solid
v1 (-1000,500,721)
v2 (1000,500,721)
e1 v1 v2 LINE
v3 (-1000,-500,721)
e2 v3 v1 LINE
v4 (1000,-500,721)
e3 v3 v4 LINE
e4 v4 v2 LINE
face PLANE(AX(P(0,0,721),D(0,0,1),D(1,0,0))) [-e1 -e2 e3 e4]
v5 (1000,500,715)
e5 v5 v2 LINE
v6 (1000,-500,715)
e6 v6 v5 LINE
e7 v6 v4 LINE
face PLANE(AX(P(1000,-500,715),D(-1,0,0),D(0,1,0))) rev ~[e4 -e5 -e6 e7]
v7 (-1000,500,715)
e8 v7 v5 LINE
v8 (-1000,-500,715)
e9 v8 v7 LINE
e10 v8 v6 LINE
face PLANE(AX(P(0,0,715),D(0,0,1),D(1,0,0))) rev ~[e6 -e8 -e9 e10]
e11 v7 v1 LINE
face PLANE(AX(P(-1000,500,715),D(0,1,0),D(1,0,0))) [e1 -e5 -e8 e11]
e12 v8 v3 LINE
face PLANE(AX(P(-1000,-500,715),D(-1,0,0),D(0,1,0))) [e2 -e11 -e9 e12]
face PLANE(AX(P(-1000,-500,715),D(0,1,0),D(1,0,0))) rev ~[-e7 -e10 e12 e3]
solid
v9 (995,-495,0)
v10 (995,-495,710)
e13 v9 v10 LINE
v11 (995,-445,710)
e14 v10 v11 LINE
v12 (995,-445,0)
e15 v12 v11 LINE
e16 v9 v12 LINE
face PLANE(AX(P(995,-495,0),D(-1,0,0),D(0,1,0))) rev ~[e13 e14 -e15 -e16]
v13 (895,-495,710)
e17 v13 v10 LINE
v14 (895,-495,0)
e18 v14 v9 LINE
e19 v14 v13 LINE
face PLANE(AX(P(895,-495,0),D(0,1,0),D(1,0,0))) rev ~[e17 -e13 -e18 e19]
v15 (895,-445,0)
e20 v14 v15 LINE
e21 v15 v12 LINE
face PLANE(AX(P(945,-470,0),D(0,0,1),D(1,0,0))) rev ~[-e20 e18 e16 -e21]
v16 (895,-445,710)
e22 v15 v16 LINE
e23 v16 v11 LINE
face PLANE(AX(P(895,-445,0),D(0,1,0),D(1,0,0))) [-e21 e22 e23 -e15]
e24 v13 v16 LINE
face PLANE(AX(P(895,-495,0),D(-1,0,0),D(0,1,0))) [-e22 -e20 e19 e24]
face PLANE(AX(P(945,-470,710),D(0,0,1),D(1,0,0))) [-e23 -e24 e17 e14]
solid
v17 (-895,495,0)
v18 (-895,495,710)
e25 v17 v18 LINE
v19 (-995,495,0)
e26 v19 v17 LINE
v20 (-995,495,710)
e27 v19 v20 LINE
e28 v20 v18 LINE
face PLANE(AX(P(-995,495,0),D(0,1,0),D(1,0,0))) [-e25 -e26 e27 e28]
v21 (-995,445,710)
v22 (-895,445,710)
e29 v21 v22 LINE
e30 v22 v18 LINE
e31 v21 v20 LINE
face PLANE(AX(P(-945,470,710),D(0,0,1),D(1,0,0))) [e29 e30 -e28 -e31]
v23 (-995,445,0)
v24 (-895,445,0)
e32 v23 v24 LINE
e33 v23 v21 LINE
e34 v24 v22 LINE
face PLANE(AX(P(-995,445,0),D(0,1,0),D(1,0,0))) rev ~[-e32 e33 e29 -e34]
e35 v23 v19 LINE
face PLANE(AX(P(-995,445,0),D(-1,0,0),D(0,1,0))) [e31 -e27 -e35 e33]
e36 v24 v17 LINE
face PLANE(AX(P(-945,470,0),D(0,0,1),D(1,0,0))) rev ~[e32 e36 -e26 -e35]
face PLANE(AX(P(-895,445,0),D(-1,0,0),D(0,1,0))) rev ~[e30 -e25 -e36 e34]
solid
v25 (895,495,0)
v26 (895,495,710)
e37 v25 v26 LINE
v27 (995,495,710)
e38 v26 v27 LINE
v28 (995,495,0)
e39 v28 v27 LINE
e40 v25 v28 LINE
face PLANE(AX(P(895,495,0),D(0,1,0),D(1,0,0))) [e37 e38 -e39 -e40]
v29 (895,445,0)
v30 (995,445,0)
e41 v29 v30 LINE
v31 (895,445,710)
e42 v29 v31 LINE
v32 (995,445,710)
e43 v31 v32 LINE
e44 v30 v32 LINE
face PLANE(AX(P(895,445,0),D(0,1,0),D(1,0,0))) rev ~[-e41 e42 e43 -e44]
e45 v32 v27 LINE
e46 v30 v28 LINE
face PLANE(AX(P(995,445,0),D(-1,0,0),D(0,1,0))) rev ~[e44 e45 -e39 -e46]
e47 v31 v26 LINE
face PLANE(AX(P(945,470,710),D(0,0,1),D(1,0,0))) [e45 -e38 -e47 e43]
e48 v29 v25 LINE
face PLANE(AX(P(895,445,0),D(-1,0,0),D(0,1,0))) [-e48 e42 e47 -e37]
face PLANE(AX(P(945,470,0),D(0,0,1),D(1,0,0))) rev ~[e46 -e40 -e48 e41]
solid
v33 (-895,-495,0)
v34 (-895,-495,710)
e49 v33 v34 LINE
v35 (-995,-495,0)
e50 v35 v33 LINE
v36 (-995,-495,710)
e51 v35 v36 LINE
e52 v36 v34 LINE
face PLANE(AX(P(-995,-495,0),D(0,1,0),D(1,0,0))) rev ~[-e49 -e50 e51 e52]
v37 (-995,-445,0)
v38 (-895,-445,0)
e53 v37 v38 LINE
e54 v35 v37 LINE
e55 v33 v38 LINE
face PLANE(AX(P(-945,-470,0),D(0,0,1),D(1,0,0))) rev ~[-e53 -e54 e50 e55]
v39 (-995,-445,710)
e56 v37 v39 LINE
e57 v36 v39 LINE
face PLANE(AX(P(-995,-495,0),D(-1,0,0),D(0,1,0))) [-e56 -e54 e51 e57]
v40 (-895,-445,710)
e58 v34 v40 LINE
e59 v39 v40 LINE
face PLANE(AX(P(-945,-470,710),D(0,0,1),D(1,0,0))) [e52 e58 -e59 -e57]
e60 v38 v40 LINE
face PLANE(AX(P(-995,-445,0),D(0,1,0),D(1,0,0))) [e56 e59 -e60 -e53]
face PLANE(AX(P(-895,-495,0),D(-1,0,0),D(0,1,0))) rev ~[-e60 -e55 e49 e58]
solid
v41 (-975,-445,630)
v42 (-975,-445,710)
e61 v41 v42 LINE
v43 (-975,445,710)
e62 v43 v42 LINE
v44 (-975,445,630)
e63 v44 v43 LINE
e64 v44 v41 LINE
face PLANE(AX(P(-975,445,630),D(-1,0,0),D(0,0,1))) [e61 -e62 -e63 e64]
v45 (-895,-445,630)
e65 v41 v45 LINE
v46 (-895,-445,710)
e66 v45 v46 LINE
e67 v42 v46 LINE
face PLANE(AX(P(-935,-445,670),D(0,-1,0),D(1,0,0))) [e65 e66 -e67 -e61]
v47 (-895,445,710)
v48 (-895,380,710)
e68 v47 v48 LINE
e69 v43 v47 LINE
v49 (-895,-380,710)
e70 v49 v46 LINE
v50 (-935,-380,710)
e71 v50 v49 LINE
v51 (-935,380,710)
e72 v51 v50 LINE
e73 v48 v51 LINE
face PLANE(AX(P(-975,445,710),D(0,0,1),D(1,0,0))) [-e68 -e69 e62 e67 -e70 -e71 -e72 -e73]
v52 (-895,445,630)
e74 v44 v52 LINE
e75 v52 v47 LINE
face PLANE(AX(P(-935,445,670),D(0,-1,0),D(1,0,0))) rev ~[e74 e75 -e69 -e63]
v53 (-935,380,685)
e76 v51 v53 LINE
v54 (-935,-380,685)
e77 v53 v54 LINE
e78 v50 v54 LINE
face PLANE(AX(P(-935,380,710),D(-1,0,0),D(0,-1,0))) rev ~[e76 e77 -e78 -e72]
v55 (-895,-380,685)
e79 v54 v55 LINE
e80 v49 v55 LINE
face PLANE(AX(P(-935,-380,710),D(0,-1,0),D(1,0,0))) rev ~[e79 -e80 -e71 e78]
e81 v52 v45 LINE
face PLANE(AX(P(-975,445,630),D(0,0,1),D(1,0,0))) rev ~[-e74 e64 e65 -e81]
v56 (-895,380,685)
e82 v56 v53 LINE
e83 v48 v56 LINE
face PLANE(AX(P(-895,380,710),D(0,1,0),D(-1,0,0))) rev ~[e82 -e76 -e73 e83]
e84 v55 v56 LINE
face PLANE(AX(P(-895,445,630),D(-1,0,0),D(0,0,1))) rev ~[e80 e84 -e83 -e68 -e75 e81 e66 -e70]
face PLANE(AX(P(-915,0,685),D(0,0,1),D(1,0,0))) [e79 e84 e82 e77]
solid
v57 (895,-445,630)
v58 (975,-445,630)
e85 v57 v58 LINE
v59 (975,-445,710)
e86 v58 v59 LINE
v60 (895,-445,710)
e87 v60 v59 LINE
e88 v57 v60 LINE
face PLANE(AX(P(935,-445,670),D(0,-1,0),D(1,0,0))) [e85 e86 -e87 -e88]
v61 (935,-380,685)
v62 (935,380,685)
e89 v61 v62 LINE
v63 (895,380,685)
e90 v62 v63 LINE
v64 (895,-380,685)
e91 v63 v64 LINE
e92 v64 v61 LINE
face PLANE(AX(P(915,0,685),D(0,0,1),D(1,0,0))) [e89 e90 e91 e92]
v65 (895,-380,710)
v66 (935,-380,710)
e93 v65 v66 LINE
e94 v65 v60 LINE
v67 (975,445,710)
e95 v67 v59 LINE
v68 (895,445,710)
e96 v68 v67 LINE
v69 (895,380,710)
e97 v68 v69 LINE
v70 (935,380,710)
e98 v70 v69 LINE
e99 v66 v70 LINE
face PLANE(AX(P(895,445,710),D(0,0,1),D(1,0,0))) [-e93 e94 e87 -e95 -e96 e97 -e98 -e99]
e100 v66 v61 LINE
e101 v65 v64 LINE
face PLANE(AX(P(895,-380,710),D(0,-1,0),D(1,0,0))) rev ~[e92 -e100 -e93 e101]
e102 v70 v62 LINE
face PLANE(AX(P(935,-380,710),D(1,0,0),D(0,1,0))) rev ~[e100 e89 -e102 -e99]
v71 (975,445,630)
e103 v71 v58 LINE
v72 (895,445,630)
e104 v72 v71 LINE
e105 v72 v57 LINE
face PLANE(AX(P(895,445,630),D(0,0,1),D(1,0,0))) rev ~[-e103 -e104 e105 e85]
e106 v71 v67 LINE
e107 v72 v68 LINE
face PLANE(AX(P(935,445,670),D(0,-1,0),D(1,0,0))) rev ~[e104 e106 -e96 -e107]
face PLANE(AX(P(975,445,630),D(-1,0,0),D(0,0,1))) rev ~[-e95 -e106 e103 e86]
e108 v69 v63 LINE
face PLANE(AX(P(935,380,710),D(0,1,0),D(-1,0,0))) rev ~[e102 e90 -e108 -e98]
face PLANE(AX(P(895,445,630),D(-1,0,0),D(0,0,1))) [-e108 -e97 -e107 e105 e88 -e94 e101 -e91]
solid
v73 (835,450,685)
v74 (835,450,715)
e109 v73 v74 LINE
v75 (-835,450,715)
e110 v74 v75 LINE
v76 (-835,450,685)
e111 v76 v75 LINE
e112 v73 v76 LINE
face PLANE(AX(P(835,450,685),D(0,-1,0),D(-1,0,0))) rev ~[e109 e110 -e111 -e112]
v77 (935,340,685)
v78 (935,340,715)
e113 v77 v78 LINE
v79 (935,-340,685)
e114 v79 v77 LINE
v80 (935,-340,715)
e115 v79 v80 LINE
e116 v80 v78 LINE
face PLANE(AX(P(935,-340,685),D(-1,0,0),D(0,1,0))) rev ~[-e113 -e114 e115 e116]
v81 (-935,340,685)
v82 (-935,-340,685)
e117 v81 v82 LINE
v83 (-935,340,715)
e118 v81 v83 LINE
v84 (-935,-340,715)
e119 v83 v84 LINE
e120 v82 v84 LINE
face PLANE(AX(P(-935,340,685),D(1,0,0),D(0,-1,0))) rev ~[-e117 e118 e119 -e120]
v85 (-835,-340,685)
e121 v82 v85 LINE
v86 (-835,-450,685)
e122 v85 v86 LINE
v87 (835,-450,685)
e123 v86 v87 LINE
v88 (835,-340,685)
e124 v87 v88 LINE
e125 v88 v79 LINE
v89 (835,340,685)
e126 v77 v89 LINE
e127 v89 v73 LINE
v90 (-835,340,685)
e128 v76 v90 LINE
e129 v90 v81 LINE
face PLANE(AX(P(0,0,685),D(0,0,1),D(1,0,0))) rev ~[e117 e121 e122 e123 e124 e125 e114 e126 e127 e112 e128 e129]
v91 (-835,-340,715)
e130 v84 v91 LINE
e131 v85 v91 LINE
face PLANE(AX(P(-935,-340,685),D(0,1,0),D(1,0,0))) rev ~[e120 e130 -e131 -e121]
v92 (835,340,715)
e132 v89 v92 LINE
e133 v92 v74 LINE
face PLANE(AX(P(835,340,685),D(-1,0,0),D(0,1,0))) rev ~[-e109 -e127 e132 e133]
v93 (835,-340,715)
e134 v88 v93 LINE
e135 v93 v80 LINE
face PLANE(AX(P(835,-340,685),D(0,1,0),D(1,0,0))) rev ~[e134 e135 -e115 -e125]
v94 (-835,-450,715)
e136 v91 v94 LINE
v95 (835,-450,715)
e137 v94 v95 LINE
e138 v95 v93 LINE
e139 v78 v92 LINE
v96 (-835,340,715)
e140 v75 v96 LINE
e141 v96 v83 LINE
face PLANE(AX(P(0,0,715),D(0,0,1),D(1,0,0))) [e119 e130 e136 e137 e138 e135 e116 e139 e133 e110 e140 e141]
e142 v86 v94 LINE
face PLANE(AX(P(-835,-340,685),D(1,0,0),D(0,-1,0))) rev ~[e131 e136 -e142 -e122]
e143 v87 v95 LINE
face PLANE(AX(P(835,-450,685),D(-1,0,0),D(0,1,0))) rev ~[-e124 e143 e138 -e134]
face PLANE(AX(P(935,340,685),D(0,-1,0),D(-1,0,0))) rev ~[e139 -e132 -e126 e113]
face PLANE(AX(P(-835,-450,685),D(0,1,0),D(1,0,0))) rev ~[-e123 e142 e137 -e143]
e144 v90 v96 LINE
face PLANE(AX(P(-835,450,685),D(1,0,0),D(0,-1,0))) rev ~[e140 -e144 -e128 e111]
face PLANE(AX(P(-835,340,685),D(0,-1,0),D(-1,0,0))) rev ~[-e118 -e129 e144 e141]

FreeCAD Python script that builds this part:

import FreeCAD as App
import Part
import Sketcher
from FreeCAD import Vector
Q = App.Units.Quantity

doc = App.newDocument("Part")
body = doc.addObject("PartDesign::Body", "Body")
body.AllowCompound = True

# Sketch on XY plane
sketch1 = doc.addObject("Sketcher::SketchObject", "Sketch")
body.addObject(sketch1)
sketch1.AttachmentSupport = (doc.XY_Plane, [""])
sketch1.MapMode = "FlatFace"
sketch1.addGeometry([
    Part.LineSegment(Vector(-995, 495, 0), Vector(-995, 445, 0)),  # 0
    Part.LineSegment(Vector(-995, 445, 0), Vector(-895, 445, 0)),  # 1
    Part.LineSegment(Vector(-895, 445, 0), Vector(-895, 495, 0)),  # 2
    Part.LineSegment(Vector(-895, 495, 0), Vector(-995, 495, 0)),  # 3
    Part.LineSegment(Vector(895, 495, 0), Vector(895, 445, 0)),  # 4
    Part.LineSegment(Vector(895, 445, 0), Vector(995, 445, 0)),  # 5
    Part.LineSegment(Vector(995, 445, 0), Vector(995, 495, 0)),  # 6
    Part.LineSegment(Vector(995, 495, 0), Vector(895, 495, 0)),  # 7
    Part.LineSegment(Vector(895, -445, 0), Vector(895, -495, 0)),  # 8
    Part.LineSegment(Vector(895, -495, 0), Vector(995, -495, 0)),  # 9
    Part.LineSegment(Vector(995, -495, 0), Vector(995, -445, 0)),  # 10
    Part.LineSegment(Vector(995, -445, 0), Vector(895, -445, 0)),  # 11
    Part.LineSegment(Vector(-995, -445, 0), Vector(-995, -495, 0)),  # 12
    Part.LineSegment(Vector(-995, -495, 0), Vector(-895, -495, 0)),  # 13
    Part.LineSegment(Vector(-895, -495, 0), Vector(-895, -445, 0)),  # 14
    Part.LineSegment(Vector(-895, -445, 0), Vector(-995, -445, 0)),  # 15
], False)
sketch1.addConstraint([
    Sketcher.Constraint("Coincident", 0, 2, 1, 1),
    Sketcher.Constraint("Coincident", 1, 2, 2, 1),
    Sketcher.Constraint("Coincident", 2, 2, 3, 1),
    Sketcher.Constraint("Coincident", 3, 2, 0, 1),
    Sketcher.Constraint("Coincident", 4, 2, 5, 1),
    Sketcher.Constraint("Coincident", 5, 2, 6, 1),
    Sketcher.Constraint("Coincident", 6, 2, 7, 1),
    Sketcher.Constraint("Coincident", 7, 2, 4, 1),
    Sketcher.Constraint("Coincident", 8, 2, 9, 1),
    Sketcher.Constraint("Coincident", 9, 2, 10, 1),
    Sketcher.Constraint("Coincident", 10, 2, 11, 1),
    Sketcher.Constraint("Coincident", 11, 2, 8, 1),
    Sketcher.Constraint("Coincident", 12, 2, 13, 1),
    Sketcher.Constraint("Coincident", 13, 2, 14, 1),
    Sketcher.Constraint("Coincident", 14, 2, 15, 1),
    Sketcher.Constraint("Coincident", 15, 2, 12, 1),
    Sketcher.Constraint("Vertical", 0),
    Sketcher.Constraint("Horizontal", 1),
    Sketcher.Constraint("Vertical", 2),
    Sketcher.Constraint("Horizontal", 3),
    Sketcher.Constraint("Vertical", 4),
    Sketcher.Constraint("Horizontal", 5),
    Sketcher.Constraint("Vertical", 6),
    Sketcher.Constraint("Horizontal", 7),
    Sketcher.Constraint("Vertical", 8),
    Sketcher.Constraint("Horizontal", 9),
    Sketcher.Constraint("Vertical", 10),
    Sketcher.Constraint("Horizontal", 11),
    Sketcher.Constraint("Vertical", 12),
    Sketcher.Constraint("Horizontal", 13),
    Sketcher.Constraint("Vertical", 14),
    Sketcher.Constraint("Horizontal", 15),
    Sketcher.Constraint("Symmetric", 2, 2, 8, 2, -1, 1),
    Sketcher.Constraint("Symmetric", 0, 2, 10, 2, -1, 1),
    Sketcher.Constraint("Symmetric", 6, 2, 12, 2, -1, 1),
    Sketcher.Constraint("Symmetric", 4, 2, 14, 2, -1, 1),
    Sketcher.Constraint("Symmetric", 1, 2, 4, 2, -2),
    Sketcher.Constraint("Symmetric", 3, 2, 6, 2, -2),
    Sketcher.Constraint("DistanceX", 1, 1, 1, 2, Q("100 mm")),
    Sketcher.Constraint("DistanceY", 0, 2, 0, 1, Q("50 mm")),
    Sketcher.Constraint("DistanceX", 0, 2, -1, 1, Q("995 mm")),
    Sketcher.Constraint("DistanceY", -1, 1, 0, 2, Q("445 mm")),
])
pad1 = doc.addObject("PartDesign::Pad", "Pad")
body.addObject(pad1)
pad1.Profile = sketch1
pad1.Length = 710
body2 = doc.addObject("PartDesign::Body", "Body001")
body2.AllowCompound = True

# Sketch on XZ plane
sketch2 = doc.addObject("Sketcher::SketchObject", "Sketch001")
body2.addObject(sketch2)
sketch2.AttachmentSupport = (doc.getObject("XZ_Plane001"), [""])
sketch2.MapMode = "FlatFace"
sketch2.AttachmentOffset = App.Placement(Vector(0, 0, -445), App.Rotation())
sketch2.addGeometry([
    Part.LineSegment(Vector(-975, 710, 0), Vector(-975, 630, 0)),  # 0
    Part.LineSegment(Vector(-975, 630, 0), Vector(-895, 630, 0)),  # 1
    Part.LineSegment(Vector(-895, 630, 0), Vector(-895, 710, 0)),  # 2
    Part.LineSegment(Vector(-895, 710, 0), Vector(-975, 710, 0)),  # 3
    Part.LineSegment(Vector(895, 710, 0), Vector(895, 630, 0)),  # 4
    Part.LineSegment(Vector(895, 630, 0), Vector(975, 630, 0)),  # 5
    Part.LineSegment(Vector(975, 630, 0), Vector(975, 710, 0)),  # 6
    Part.LineSegment(Vector(975, 710, 0), Vector(895, 710, 0)),  # 7
], False)
sketch2.addConstraint([
    Sketcher.Constraint("Coincident", 0, 2, 1, 1),
    Sketcher.Constraint("Coincident", 1, 2, 2, 1),
    Sketcher.Constraint("Coincident", 2, 2, 3, 1),
    Sketcher.Constraint("Coincident", 3, 2, 0, 1),
    Sketcher.Constraint("Coincident", 4, 2, 5, 1),
    Sketcher.Constraint("Coincident", 5, 2, 6, 1),
    Sketcher.Constraint("Coincident", 6, 2, 7, 1),
    Sketcher.Constraint("Coincident", 7, 2, 4, 1),
    Sketcher.Constraint("Vertical", 0),
    Sketcher.Constraint("Horizontal", 1),
    Sketcher.Constraint("Vertical", 2),
    Sketcher.Constraint("Horizontal", 3),
    Sketcher.Constraint("Vertical", 4),
    Sketcher.Constraint("Horizontal", 5),
    Sketcher.Constraint("Vertical", 6),
    Sketcher.Constraint("Horizontal", 7),
    Sketcher.Constraint("Symmetric", 1, 2, 4, 2, -2),
    Sketcher.Constraint("Symmetric", 3, 2, 6, 2, -2),
    Sketcher.Constraint("Equal", 7, 0),
    Sketcher.Constraint("DistanceX", 1, 1, 1, 2, Q("80 mm")),
    Sketcher.Constraint("DistanceX", 0, 2, -1, 1, Q("975 mm")),
    Sketcher.Constraint("DistanceY", -1, 1, 0, 2, Q("630 mm")),
])
pad2 = doc.addObject("PartDesign::Pad", "Pad001")
body2.addObject(pad2)
pad2.Profile = sketch2
pad2.Length = 890

# Sketch on XY plane
sketch3 = doc.addObject("Sketcher::SketchObject", "Sketch002")
body2.addObject(sketch3)
sketch3.AttachmentSupport = (doc.getObject("XY_Plane001"), [""])
sketch3.MapMode = "FlatFace"
sketch3.AttachmentOffset = App.Placement(Vector(0, 0, 710), App.Rotation())
sketch3.addGeometry([
    Part.LineSegment(Vector(-935, 380, 0), Vector(-935, -380, 0)),  # 0
    Part.LineSegment(Vector(-935, -380, 0), Vector(-895, -380, 0)),  # 1
    Part.LineSegment(Vector(-895, -380, 0), Vector(-895, 380, 0)),  # 2
    Part.LineSegment(Vector(-895, 380, 0), Vector(-935, 380, 0)),  # 3
    Part.LineSegment(Vector(935, 380, 0), Vector(895, 380, 0)),  # 4
    Part.LineSegment(Vector(895, 380, 0), Vector(895, -380, 0)),  # 5
    Part.LineSegment(Vector(895, -380, 0), Vector(935, -380, 0)),  # 6
    Part.LineSegment(Vector(935, -380, 0), Vector(935, 380, 0)),  # 7
], False)
sketch3.addConstraint([
    Sketcher.Constraint("Coincident", 0, 2, 1, 1),
    Sketcher.Constraint("Coincident", 1, 2, 2, 1),
    Sketcher.Constraint("Coincident", 2, 2, 3, 1),
    Sketcher.Constraint("Coincident", 3, 2, 0, 1),
    Sketcher.Constraint("Coincident", 4, 2, 5, 1),
    Sketcher.Constraint("Coincident", 5, 2, 6, 1),
    Sketcher.Constraint("Coincident", 6, 2, 7, 1),
    Sketcher.Constraint("Coincident", 7, 2, 4, 1),
    Sketcher.Constraint("Vertical", 0),
    Sketcher.Constraint("Horizontal", 1),
    Sketcher.Constraint("Vertical", 2),
    Sketcher.Constraint("Horizontal", 3),
    Sketcher.Constraint("Horizontal", 4),
    Sketcher.Constraint("Vertical", 5),
    Sketcher.Constraint("Horizontal", 6),
    Sketcher.Constraint("Vertical", 7),
    Sketcher.Constraint("Symmetric", 1, 2, 4, 2, -1, 1),
    Sketcher.Constraint("Symmetric", 3, 2, 6, 2, -1, 1),
    Sketcher.Constraint("Horizontal", 3, 2, 4, 2),
    Sketcher.Constraint("DistanceX", 1, 1, 1, 2, Q("40 mm")),
    Sketcher.Constraint("DistanceY", 0, 2, 0, 1, Q("760 mm")),
    Sketcher.Constraint("DistanceX", 0, 2, -1, 1, Q("935 mm")),
])
pocket1 = doc.addObject("PartDesign::Pocket", "Pocket")
body2.addObject(pocket1)
pocket1.Profile = sketch3
pocket1.Length = 25
body3 = doc.addObject("PartDesign::Body", "Body002")

# Sketch on XY plane
sketch4 = doc.addObject("Sketcher::SketchObject", "Sketch003")
body3.addObject(sketch4)
sketch4.AttachmentSupport = (doc.getObject("XY_Plane002"), [""])
sketch4.MapMode = "FlatFace"
sketch4.AttachmentOffset = App.Placement(Vector(0, 0, 685), App.Rotation())
sketch4.addGeometry([
    Part.LineSegment(Vector(-935, 340, 0), Vector(-935, -340, 0)),  # 0
    Part.LineSegment(Vector(-935, -340, 0), Vector(-835, -340, 0)),  # 1
    Part.LineSegment(Vector(-835, -340, 0), Vector(-835, -450, 0)),  # 2
    Part.LineSegment(Vector(-835, -450, 0), Vector(835, -450, 0)),  # 3
    Part.LineSegment(Vector(835, -450, 0), Vector(835, -340, 0)),  # 4
    Part.LineSegment(Vector(835, -340, 0), Vector(935, -340, 0)),  # 5
    Part.LineSegment(Vector(935, -340, 0), Vector(935, 340, 0)),  # 6
    Part.LineSegment(Vector(935, 340, 0), Vector(835, 340, 0)),  # 7
    Part.LineSegment(Vector(835, 340, 0), Vector(835, 450, 0)),  # 8
    Part.LineSegment(Vector(835, 450, 0), Vector(-835, 450, 0)),  # 9
    Part.LineSegment(Vector(-835, 450, 0), Vector(-835, 340, 0)),  # 10
    Part.LineSegment(Vector(-835, 340, 0), Vector(-935, 340, 0)),  # 11
], False)
sketch4.addConstraint([
    Sketcher.Constraint("Coincident", 0, 2, 1, 1),
    Sketcher.Constraint("Coincident", 1, 2, 2, 1),
    Sketcher.Constraint("Coincident", 2, 2, 3, 1),
    Sketcher.Constraint("Coincident", 3, 2, 4, 1),
    Sketcher.Constraint("Coincident", 4, 2, 5, 1),
    Sketcher.Constraint("Coincident", 5, 2, 6, 1),
    Sketcher.Constraint("Coincident", 6, 2, 7, 1),
    Sketcher.Constraint("Coincident", 7, 2, 8, 1),
    Sketcher.Constraint("Coincident", 8, 2, 9, 1),
    Sketcher.Constraint("Coincident", 9, 2, 10, 1),
    Sketcher.Constraint("Coincident", 10, 2, 11, 1),
    Sketcher.Constraint("Coincident", 11, 2, 0, 1),
    Sketcher.Constraint("Vertical", 0),
    Sketcher.Constraint("Horizontal", 1),
    Sketcher.Constraint("Vertical", 2),
    Sketcher.Constraint("Horizontal", 3),
    Sketcher.Constraint("Vertical", 4),
    Sketcher.Constraint("Horizontal", 5),
    Sketcher.Constraint("Vertical", 6),
    Sketcher.Constraint("Horizontal", 7),
    Sketcher.Constraint("Vertical", 8),
    Sketcher.Constraint("Horizontal", 9),
    Sketcher.Constraint("Vertical", 10),
    Sketcher.Constraint("Horizontal", 11),
    Sketcher.Constraint("Symmetric", 0, 2, 6, 2, -1, 1),
    Sketcher.Constraint("Symmetric", 2, 2, 8, 2, -1, 1),
    Sketcher.Constraint("Symmetric", 4, 2, 10, 2, -1, 1),
    Sketcher.Constraint("Symmetric", 1, 2, 4, 2, -2),
    Sketcher.Constraint("DistanceX", 1, 1, 1, 2, Q("100 mm")),
    Sketcher.Constraint("DistanceX", 3, 1, 3, 2, Q("1670 mm")),
    Sketcher.Constraint("DistanceY", 0, 2, 0, 1, Q("680 mm")),
    Sketcher.Constraint("DistanceY", 2, 2, 2, 1, Q("110 mm")),
])
pad3 = doc.addObject("PartDesign::Pad", "Pad002")
body3.addObject(pad3)
pad3.Profile = sketch4
pad3.Length = 30
body4 = doc.addObject("PartDesign::Body", "Body003")

# Sketch on XY plane
sketch5 = doc.addObject("Sketcher::SketchObject", "Sketch004")
body4.addObject(sketch5)
sketch5.AttachmentSupport = (doc.getObject("XY_Plane003"), [""])
sketch5.MapMode = "FlatFace"
sketch5.AttachmentOffset = App.Placement(Vector(0, 0, 715), App.Rotation())
sketch5.addGeometry([
    Part.LineSegment(Vector(-1000, 500, 0), Vector(-1000, -500, 0)),
    Part.LineSegment(Vector(-1000, -500, 0), Vector(1000, -500, 0)),
    Part.LineSegment(Vector(1000, -500, 0), Vector(1000, 500, 0)),
    Part.LineSegment(Vector(1000, 500, 0), Vector(-1000, 500, 0)),
], False)
sketch5.addConstraint([
    Sketcher.Constraint("Coincident", 0, 2, 1, 1),
    Sketcher.Constraint("Coincident", 1, 2, 2, 1),
    Sketcher.Constraint("Coincident", 2, 2, 3, 1),
    Sketcher.Constraint("Coincident", 3, 2, 0, 1),
    Sketcher.Constraint("Vertical", 0),
    Sketcher.Constraint("Horizontal", 1),
    Sketcher.Constraint("Vertical", 2),
    Sketcher.Constraint("Horizontal", 3),
    Sketcher.Constraint("Symmetric", 0, 2, 2, 2, -1, 1),
    Sketcher.Constraint("DistanceX", 1, 1, 1, 2, Q("2000 mm")),
    Sketcher.Constraint("DistanceY", 0, 2, 0, 1, Q("1000 mm")),
])
pad4 = doc.addObject("PartDesign::Pad", "Pad003")
body4.addObject(pad4)
pad4.Profile = sketch5
pad4.Length = 6

doc.recompute()
